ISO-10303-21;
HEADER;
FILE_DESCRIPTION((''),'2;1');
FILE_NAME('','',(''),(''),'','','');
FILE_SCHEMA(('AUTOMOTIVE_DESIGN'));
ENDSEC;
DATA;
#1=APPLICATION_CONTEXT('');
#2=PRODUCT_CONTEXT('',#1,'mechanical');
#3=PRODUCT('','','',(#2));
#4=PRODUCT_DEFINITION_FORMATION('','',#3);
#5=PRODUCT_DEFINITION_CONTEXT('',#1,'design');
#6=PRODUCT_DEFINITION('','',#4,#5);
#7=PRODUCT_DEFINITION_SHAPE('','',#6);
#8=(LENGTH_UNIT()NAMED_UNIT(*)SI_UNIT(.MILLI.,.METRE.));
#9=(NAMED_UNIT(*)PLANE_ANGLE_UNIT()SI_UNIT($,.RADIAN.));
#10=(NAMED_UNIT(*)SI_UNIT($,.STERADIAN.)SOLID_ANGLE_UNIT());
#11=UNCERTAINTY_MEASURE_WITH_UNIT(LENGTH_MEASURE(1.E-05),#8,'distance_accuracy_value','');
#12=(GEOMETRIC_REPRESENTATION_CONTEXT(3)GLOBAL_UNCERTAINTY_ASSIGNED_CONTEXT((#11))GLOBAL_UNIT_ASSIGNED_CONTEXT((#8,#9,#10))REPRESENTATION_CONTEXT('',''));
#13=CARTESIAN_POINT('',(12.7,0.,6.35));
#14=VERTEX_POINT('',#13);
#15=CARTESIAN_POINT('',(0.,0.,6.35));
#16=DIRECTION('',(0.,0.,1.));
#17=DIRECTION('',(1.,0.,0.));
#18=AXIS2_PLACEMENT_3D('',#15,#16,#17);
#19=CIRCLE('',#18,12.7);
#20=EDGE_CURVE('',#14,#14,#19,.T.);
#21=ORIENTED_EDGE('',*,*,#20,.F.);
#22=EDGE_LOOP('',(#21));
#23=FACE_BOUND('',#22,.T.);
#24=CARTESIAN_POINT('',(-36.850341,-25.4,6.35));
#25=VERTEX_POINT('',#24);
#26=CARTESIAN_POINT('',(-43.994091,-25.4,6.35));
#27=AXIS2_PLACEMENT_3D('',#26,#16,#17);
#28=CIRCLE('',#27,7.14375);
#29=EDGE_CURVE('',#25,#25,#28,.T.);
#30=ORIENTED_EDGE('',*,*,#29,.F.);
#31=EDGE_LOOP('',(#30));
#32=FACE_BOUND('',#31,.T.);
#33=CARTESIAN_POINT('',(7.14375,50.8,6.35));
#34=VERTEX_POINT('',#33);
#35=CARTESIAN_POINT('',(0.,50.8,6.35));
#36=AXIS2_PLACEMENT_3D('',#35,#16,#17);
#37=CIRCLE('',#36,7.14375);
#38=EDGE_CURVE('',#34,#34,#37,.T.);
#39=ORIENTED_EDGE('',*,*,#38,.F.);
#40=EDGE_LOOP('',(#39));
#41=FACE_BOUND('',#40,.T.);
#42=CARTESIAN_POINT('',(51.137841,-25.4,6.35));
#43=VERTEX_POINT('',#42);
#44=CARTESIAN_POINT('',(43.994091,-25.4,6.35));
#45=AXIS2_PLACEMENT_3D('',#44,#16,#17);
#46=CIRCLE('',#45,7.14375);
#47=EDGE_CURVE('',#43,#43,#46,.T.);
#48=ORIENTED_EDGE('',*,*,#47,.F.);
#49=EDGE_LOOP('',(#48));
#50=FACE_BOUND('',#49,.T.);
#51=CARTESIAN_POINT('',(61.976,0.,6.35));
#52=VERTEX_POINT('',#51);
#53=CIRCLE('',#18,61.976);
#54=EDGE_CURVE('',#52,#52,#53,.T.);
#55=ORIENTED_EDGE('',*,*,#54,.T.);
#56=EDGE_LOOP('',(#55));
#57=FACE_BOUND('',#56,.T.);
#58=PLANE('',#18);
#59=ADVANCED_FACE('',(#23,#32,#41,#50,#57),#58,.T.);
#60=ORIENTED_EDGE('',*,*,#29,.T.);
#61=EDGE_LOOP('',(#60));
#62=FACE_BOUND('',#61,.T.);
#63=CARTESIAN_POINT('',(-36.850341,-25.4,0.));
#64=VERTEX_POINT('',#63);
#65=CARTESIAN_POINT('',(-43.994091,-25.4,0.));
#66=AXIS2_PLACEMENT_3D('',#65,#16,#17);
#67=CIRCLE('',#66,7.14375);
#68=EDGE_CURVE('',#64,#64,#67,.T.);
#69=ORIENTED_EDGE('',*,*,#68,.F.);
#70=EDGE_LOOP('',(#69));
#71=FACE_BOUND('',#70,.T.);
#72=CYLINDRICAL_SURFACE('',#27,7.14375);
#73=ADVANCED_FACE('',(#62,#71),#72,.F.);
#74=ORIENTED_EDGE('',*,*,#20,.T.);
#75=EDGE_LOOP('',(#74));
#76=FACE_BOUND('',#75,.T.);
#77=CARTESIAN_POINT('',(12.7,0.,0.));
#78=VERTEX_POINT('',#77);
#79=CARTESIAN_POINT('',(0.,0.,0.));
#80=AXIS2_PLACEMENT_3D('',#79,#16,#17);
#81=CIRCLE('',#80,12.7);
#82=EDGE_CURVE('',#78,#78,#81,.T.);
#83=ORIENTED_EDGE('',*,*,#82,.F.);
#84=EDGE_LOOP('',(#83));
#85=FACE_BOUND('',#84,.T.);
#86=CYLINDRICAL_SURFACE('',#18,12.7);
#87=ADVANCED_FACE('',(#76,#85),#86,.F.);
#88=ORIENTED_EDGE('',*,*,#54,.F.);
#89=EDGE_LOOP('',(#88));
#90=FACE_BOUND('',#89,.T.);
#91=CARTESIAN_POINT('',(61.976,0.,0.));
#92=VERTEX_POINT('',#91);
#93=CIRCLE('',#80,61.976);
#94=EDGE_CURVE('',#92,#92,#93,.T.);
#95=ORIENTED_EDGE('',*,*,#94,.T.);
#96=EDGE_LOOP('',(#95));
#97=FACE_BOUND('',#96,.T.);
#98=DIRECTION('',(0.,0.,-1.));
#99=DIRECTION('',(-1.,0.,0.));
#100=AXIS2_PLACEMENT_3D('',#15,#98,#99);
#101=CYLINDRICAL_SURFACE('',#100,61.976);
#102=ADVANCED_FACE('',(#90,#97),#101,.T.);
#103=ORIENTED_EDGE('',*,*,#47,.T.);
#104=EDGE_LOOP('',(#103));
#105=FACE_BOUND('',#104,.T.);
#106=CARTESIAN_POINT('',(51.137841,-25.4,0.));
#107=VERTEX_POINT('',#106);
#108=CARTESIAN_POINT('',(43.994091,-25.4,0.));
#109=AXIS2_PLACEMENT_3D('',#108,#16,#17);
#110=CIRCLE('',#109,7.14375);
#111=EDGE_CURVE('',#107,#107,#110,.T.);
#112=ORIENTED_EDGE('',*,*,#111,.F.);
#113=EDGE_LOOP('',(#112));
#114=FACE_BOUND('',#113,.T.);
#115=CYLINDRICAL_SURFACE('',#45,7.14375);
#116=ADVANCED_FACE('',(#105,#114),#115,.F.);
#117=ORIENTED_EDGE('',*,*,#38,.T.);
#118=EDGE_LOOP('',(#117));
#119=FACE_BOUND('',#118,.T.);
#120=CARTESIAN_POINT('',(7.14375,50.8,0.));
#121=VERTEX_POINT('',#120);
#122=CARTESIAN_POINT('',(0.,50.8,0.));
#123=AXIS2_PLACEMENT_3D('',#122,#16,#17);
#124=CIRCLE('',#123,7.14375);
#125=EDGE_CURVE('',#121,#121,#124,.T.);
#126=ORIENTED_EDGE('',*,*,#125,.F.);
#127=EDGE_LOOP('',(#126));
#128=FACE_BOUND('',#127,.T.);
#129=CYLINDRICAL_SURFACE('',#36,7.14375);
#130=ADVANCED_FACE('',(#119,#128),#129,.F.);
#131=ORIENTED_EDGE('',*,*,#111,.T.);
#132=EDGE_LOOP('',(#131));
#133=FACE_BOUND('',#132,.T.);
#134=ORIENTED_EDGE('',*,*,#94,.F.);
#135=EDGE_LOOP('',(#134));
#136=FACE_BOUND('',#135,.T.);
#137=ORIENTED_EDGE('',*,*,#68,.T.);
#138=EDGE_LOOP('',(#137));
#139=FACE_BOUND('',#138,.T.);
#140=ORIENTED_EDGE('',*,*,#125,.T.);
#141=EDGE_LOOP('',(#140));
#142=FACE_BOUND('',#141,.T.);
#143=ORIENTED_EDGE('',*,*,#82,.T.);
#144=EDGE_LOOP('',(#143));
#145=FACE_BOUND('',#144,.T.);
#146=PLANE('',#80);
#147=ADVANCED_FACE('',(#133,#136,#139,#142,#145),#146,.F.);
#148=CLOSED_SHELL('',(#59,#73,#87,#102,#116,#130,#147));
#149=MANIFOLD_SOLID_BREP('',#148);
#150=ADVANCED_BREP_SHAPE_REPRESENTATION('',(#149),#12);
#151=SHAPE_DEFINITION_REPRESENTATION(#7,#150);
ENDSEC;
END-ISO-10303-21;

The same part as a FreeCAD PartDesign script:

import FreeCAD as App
import Part
import Sketcher
from FreeCAD import Vector
Q = App.Units.Quantity

doc = App.newDocument("Part")
body = doc.addObject("PartDesign::Body", "Body")

sketch1 = doc.addObject("Sketcher::SketchObject", "Sketch")
body.addObject(sketch1)
sketch1.AttachmentSupport = (doc.XY_Plane, [""])
sketch1.MapMode = "FlatFace"
sketch1.addGeometry(Part.Circle(Vector(0, 0, 0), Vector(0, 0, 1), 62), False)
sketch1.addConstraint([
    Sketcher.Constraint("Coincident", 0, 3, -1, 1),
    Sketcher.Constraint("Diameter", 0, Q("4.88 in")),
])
pad1 = doc.addObject("PartDesign::Pad", "Pad")
body.addObject(pad1)
pad1.Profile = sketch1
pad1.Length = Q("0.25 in")

sketch2 = doc.addObject("Sketcher::SketchObject", "Sketch001")
body.addObject(sketch2)
sketch2.AttachmentSupport = (doc.XY_Plane, [""])
sketch2.MapMode = "FlatFace"
sketch2.AttachmentOffset = App.Placement(Vector(0, 0, 0.25 * 25.4), App.Rotation())
sketch2.addGeometry(Part.Circle(Vector(0, 0, 0), Vector(0, 0, 1), 13), False)
sketch2.addConstraint([
    Sketcher.Constraint("Coincident", 0, 3, -1, 1),
    Sketcher.Constraint("Diameter", 0, Q("1 in")),
])
doc.recompute()
hole = doc.addObject("PartDesign::Hole", "Hole")
body.addObject(hole)
hole.Profile = sketch2
hole.ThreadType = "None"
hole.Diameter = Q("1 in")
hole.DepthType = "ThroughAll"

sketch3 = doc.addObject("Sketcher::SketchObject", "Sketch002")
body.addObject(sketch3)
sketch3.AttachmentSupport = (doc.XY_Plane, [""])
sketch3.MapMode = "FlatFace"
sketch3.AttachmentOffset = App.Placement(Vector(0, 0, 0.25 * 25.4), App.Rotation())
sketch3.addGeometry([
    Part.Circle(Vector(-44, -25, 0), Vector(0, 0, 1), 7),
    Part.Circle(Vector(44, -25, 0), Vector(0, 0, 1), 7),
    Part.Circle(Vector(0, 51, 0), Vector(0, 0, 1), 7),
], False)
sketch3.addConstraint([
    Sketcher.Constraint("Equal", 0, 1),
    Sketcher.Constraint("Equal", 1, 2),
    Sketcher.Constraint("Symmetric", 0, 3, 1, 3, -2),
    Sketcher.Constraint("PointOnObject", 2, 3, -2),
    Sketcher.Constraint("Diameter", 0, Q("0.5625 in")),
    Sketcher.Constraint("DistanceY", 0, 3, -1, 1, Q("1 in")),
    Sketcher.Constraint("DistanceY", -1, 1, 2, 3, Q("2 in")),
    Sketcher.Constraint("DistanceX", 0, 3, -1, 1, 43.994091),
])
doc.recompute()
hole2 = doc.addObject("PartDesign::Hole", "Hole001")
body.addObject(hole2)
hole2.Profile = sketch3
hole2.ThreadType = "None"
hole2.Diameter = Q("0.5625 in")
hole2.DepthType = "ThroughAll"

doc.recompute()
